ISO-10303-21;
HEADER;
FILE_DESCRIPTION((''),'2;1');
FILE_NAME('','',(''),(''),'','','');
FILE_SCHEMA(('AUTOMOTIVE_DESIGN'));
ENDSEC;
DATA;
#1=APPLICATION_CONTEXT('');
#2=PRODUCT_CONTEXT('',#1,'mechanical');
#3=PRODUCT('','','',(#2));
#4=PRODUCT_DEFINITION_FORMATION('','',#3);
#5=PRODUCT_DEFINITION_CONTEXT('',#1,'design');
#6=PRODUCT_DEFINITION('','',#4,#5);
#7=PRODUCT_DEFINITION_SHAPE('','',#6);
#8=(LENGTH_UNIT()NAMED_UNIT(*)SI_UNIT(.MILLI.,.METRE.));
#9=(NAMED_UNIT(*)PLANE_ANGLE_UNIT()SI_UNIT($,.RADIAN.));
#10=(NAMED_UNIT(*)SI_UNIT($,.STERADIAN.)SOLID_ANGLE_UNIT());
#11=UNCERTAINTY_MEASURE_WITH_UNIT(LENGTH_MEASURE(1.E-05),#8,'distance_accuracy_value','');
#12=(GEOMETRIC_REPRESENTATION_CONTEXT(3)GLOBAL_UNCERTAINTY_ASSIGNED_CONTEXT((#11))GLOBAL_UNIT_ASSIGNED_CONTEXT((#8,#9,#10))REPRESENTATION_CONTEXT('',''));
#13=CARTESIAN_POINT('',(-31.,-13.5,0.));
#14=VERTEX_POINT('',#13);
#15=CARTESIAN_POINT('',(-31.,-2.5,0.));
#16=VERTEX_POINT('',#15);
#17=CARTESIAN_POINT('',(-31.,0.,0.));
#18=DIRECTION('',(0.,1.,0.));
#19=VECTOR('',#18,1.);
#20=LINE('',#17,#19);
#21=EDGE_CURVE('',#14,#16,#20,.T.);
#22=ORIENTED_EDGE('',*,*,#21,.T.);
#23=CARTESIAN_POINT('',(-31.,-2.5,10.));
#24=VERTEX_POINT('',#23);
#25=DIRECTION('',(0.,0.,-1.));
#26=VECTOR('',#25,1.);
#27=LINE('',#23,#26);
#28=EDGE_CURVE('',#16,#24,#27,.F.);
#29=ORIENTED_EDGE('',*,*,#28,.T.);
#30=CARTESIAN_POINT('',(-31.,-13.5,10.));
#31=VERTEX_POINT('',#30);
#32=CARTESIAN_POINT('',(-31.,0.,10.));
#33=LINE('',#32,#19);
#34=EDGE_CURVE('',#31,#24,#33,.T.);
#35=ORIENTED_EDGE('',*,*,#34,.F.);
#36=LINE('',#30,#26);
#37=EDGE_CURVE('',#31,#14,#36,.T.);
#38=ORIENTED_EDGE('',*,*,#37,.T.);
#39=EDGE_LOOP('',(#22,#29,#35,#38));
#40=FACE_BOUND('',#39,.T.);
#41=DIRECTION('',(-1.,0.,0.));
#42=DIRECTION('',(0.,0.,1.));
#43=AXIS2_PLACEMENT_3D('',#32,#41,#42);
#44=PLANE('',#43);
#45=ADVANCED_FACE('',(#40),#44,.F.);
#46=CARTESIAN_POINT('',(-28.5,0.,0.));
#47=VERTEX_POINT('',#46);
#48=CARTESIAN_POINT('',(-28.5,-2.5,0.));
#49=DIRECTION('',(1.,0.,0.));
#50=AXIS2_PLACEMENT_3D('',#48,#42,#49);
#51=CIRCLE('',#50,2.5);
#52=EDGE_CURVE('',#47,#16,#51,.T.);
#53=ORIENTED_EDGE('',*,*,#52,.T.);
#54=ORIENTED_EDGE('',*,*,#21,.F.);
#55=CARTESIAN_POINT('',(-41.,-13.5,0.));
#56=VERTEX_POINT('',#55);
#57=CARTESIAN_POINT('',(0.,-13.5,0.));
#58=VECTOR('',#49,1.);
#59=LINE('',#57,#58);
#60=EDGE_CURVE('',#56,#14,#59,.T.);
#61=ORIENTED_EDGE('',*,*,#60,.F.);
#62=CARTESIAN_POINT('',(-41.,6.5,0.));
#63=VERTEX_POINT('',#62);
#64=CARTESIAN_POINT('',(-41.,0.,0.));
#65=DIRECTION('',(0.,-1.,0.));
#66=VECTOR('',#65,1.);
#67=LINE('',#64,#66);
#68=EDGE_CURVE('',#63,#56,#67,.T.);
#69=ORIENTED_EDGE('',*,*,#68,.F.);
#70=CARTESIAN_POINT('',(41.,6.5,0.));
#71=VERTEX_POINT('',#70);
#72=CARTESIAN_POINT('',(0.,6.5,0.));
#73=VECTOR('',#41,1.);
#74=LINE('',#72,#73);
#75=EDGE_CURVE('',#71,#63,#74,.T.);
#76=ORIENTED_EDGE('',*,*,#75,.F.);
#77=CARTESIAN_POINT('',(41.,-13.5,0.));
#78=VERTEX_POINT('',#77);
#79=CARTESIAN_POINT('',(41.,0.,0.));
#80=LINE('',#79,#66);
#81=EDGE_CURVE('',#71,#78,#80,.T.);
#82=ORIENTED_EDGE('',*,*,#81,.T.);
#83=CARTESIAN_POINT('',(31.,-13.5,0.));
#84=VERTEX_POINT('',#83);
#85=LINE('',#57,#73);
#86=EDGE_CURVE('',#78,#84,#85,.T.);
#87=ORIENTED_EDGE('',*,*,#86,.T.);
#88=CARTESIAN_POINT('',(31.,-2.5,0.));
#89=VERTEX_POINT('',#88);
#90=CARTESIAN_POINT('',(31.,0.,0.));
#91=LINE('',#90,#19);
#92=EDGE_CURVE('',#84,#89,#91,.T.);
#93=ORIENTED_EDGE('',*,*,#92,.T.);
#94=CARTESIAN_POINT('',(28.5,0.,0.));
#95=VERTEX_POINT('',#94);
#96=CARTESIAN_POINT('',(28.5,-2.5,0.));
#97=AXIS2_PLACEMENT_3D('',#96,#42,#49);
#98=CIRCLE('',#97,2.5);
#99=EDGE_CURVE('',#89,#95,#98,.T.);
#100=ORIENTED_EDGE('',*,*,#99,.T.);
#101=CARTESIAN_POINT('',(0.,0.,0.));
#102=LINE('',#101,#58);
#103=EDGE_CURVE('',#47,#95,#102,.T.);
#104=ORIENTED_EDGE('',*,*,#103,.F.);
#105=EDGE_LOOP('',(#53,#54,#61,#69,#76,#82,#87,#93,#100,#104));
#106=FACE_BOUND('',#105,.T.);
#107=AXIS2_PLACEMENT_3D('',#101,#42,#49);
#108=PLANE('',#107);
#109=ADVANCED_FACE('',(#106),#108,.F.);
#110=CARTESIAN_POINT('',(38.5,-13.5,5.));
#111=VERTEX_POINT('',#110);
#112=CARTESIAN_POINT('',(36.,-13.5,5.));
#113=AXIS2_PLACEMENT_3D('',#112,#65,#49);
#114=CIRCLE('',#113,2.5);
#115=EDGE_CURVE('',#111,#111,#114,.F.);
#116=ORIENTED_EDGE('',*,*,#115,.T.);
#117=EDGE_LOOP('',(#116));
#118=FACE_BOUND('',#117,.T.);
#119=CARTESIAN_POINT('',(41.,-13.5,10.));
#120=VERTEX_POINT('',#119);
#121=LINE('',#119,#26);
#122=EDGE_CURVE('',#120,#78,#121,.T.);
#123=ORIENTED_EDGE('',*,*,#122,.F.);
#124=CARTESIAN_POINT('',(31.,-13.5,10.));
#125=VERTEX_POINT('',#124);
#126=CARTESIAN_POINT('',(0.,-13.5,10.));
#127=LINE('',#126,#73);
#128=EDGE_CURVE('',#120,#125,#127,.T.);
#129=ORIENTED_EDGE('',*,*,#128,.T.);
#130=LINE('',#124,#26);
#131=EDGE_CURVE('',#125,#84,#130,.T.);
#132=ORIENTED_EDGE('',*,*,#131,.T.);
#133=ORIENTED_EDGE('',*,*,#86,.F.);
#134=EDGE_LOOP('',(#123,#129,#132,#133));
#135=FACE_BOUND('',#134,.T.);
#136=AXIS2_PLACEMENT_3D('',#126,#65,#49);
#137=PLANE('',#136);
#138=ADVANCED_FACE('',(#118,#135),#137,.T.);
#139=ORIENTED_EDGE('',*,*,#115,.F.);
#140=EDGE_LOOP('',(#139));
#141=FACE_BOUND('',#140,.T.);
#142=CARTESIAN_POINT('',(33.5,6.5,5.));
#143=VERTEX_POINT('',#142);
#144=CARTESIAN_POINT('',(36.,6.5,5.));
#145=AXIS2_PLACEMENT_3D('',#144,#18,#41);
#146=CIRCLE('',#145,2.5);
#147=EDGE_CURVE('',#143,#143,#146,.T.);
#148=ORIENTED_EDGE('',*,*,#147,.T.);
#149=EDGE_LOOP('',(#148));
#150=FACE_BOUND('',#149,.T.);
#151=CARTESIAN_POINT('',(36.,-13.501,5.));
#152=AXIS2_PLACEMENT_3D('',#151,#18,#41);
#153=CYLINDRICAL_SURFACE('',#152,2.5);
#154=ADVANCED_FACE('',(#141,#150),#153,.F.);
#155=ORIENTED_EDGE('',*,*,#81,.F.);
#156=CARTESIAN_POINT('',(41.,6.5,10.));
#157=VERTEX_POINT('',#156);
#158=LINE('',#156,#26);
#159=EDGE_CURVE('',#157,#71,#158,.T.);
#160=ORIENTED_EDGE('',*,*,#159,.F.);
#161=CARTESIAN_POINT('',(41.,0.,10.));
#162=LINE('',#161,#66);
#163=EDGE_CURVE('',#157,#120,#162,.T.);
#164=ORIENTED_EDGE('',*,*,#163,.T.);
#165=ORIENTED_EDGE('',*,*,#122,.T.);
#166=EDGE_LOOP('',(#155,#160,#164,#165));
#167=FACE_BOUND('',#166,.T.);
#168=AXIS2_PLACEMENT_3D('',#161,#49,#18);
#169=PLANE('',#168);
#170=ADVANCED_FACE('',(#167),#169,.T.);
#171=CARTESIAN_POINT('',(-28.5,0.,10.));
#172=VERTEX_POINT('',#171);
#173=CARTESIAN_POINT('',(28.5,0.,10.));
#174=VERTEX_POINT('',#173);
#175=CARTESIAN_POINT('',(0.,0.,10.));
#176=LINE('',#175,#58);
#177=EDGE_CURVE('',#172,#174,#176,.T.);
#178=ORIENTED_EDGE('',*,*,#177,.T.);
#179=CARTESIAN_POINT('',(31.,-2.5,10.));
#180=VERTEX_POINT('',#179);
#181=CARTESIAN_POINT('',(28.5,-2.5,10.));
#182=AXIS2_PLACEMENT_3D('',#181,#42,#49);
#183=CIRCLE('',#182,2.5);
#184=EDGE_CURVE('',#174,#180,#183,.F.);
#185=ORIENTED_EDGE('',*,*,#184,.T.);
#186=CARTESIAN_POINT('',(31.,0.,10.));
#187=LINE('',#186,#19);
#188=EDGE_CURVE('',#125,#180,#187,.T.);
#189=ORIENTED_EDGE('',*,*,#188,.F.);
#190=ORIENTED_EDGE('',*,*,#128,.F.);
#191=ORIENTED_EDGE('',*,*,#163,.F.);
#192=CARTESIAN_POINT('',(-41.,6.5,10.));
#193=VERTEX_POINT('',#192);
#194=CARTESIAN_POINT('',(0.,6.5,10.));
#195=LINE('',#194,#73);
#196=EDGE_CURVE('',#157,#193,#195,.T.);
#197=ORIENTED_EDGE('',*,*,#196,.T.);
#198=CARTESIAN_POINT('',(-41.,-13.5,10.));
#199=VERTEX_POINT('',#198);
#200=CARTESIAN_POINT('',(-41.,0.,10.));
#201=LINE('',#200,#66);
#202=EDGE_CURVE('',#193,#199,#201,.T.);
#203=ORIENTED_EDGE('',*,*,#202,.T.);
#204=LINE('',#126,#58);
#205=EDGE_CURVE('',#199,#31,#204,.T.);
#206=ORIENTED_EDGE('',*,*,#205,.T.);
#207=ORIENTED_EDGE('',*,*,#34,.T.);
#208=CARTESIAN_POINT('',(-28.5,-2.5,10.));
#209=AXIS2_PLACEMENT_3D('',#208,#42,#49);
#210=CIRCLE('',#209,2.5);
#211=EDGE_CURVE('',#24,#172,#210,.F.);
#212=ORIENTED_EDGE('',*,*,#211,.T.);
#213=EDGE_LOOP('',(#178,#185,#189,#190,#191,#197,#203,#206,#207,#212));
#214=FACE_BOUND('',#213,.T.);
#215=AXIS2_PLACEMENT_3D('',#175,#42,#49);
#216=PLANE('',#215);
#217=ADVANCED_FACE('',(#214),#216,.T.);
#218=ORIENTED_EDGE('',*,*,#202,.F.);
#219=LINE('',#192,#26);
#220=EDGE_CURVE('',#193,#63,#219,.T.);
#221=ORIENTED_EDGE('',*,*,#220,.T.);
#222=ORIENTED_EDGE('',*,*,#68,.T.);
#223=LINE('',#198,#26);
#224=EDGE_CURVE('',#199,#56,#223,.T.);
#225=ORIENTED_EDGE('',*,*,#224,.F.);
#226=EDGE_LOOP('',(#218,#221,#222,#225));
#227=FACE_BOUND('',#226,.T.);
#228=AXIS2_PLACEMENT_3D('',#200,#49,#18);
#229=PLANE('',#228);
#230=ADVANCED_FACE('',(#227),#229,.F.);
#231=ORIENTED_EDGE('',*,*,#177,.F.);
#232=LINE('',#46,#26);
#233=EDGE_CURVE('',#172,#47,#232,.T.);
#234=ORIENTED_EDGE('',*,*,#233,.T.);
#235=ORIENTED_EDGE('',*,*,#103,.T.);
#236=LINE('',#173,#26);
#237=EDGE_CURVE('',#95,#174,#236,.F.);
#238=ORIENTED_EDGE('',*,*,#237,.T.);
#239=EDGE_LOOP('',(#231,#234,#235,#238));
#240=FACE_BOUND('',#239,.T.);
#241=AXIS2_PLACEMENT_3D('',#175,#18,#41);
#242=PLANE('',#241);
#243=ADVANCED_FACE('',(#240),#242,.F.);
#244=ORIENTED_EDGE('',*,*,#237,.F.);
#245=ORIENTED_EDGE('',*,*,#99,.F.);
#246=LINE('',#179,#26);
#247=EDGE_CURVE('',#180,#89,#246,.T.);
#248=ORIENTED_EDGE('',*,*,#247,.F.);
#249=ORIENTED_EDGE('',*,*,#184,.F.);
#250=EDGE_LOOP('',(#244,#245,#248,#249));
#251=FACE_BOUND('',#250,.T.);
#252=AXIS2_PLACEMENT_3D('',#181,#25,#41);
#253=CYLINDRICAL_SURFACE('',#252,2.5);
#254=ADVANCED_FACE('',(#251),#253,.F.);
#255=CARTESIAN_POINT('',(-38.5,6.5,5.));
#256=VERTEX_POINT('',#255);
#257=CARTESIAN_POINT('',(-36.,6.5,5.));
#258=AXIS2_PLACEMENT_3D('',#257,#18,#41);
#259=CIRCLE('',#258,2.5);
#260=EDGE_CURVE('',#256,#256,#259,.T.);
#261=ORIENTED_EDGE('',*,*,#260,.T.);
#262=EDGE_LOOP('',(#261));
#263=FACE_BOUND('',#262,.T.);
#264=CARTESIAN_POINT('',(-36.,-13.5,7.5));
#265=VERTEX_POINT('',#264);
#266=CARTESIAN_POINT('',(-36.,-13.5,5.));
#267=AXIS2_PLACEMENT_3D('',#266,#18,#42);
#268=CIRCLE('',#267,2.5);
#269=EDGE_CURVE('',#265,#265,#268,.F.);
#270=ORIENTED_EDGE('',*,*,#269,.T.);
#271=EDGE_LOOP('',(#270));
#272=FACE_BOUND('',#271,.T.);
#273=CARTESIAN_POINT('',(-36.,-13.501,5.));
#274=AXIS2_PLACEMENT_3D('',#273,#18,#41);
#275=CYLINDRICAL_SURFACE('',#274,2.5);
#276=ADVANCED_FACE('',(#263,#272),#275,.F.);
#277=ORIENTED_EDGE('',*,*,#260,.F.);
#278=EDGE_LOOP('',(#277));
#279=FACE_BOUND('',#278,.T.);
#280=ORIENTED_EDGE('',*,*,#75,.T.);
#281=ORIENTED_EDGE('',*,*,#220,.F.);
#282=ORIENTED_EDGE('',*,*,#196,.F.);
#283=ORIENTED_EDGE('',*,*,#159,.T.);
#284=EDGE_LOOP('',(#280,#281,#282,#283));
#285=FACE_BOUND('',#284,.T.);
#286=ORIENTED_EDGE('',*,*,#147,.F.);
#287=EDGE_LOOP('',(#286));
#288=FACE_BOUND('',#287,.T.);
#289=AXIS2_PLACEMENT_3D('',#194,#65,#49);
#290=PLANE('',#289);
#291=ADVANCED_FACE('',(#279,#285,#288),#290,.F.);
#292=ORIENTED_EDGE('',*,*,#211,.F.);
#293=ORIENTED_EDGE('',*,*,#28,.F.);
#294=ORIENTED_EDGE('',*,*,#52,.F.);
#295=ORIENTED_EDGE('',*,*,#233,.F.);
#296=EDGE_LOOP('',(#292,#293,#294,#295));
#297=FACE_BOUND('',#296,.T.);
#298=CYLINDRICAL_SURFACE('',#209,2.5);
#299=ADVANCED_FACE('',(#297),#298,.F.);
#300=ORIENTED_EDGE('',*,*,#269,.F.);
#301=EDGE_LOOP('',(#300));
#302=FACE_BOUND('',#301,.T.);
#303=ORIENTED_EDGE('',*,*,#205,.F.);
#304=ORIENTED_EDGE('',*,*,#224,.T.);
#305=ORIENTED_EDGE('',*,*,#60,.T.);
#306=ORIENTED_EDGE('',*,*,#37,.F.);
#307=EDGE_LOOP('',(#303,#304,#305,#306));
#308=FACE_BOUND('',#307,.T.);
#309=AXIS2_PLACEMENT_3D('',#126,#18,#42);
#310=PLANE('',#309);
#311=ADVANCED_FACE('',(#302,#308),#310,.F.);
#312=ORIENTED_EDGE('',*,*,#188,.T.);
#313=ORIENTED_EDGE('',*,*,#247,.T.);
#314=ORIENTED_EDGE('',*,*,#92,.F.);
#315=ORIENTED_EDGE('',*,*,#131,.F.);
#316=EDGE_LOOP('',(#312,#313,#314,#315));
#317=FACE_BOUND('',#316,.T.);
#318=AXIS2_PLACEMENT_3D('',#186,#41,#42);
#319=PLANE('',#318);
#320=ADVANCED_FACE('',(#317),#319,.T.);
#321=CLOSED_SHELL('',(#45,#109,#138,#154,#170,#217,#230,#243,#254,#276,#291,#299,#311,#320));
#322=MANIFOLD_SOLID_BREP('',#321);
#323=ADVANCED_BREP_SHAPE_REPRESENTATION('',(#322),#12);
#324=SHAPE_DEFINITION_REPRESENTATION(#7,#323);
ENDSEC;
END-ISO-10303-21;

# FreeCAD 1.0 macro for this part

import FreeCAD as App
import Part
import Sketcher
from FreeCAD import Vector
Q = App.Units.Quantity


def edges_at(feature, points):
    """Names of the edges that pass closest to the given points."""
    edges = feature.Shape.Edges
    near = lambda p: min(range(len(edges)), key=lambda i: edges[i].distToShape(Part.Vertex(*p))[0])
    return sorted({f"Edge{near(p) + 1}" for p in points})


def add_polygon(sketch, points):
    """Adds a closed chain of lines whose ends are joined by coincident constraints."""
    first, n = sketch.GeometryCount, len(points)
    for a, b in zip(points, points[1:] + points[:1]):
        sketch.addGeometry(Part.LineSegment(App.Vector(*a, 0), App.Vector(*b, 0)), False)
    for i in range(n):
        sketch.addConstraint(Sketcher.Constraint("Coincident", first + i, 2, first + (i + 1) % n, 1))

doc = App.newDocument("Part")
body = doc.addObject("PartDesign::Body", "Body")

sketch1 = doc.addObject("Sketcher::SketchObject", "Sketch")
body.addObject(sketch1)
sketch1.AttachmentSupport = (doc.XY_Plane, [""])
sketch1.MapMode = "FlatFace"
add_polygon(sketch1, [(31, 0), (31, -14), (41, -14), (41, 6), (-41, 6), (-41, -14), (-31, -14), (-31, 0)])
sketch1.addConstraint([
    Sketcher.Constraint("Vertical", 0),
    Sketcher.Constraint("Horizontal", 1),
    Sketcher.Constraint("Vertical", 2),
    Sketcher.Constraint("Horizontal", 3),
    Sketcher.Constraint("Vertical", 4),
    Sketcher.Constraint("Horizontal", 5),
    Sketcher.Constraint("Vertical", 6),
    Sketcher.Constraint("Horizontal", 7),
    Sketcher.Constraint("Symmetric", 6, 2, 7, 2, -1, 1),
    Sketcher.Constraint("Symmetric", 1, 2, 4, 2, -2),
    Sketcher.Constraint("DistanceX", 1, 1, 1, 2, Q("10 mm")),
    Sketcher.Constraint("DistanceX", 3, 2, 3, 1, Q("82 mm")),
    Sketcher.Constraint("DistanceY", 2, 1, 2, 2, Q("20 mm")),
    Sketcher.Constraint("DistanceY", 0, 2, 0, 1, Q("13.5 mm")),
])
pad1 = doc.addObject("PartDesign::Pad", "Pad")
body.addObject(pad1)
pad1.Profile = sketch1
pad1.Length = 10
doc.recompute()

fillet = doc.addObject("PartDesign::Fillet", "Fillet")
body.addObject(fillet)
fillet.Base = (pad1, edges_at(pad1, [(31, 0, 5), (-31, 0, 5)]))
fillet.Radius = 2.5

sketch2 = doc.addObject("Sketcher::SketchObject", "Sketch001")
body.addObject(sketch2)
sketch2.AttachmentSupport = (doc.XZ_Plane, [""])
sketch2.MapMode = "FlatFace"
sketch2.AttachmentOffset = App.Placement(Vector(0, 0, -6.5), App.Rotation())
sketch2.addGeometry(Part.Circle(Vector(-36, 5, 0), Vector(0, 0, 1), 2.5), False)
sketch2.addConstraint([
    Sketcher.Constraint("Diameter", 0, Q("5 mm")),
    Sketcher.Constraint("DistanceX", 0, 3, -1, 1, Q("36 mm")),
    Sketcher.Constraint("DistanceY", -1, 1, 0, 3, Q("5 mm")),
])
pocket1 = doc.addObject("PartDesign::Pocket", "Pocket")
body.addObject(pocket1)
pocket1.Profile = sketch2
pocket1.Type = "UpToFirst"
pocket1.Reversed = True

sketch3 = doc.addObject("Sketcher::SketchObject", "Sketch002")
body.addObject(sketch3)
sketch3.AttachmentSupport = (doc.XZ_Plane, [""])
sketch3.MapMode = "FlatFace"
sketch3.AttachmentOffset = App.Placement(Vector(0, 0, -6.5), App.Rotation())
sketch3.addGeometry(Part.Circle(Vector(36, 5, 0), Vector(0, 0, 1), 2.5), False)
sketch3.addConstraint([
    Sketcher.Constraint("Diameter", 0, Q("5 mm")),
    Sketcher.Constraint("DistanceX", -1, 1, 0, 3, Q("36 mm")),
    Sketcher.Constraint("DistanceY", -1, 1, 0, 3, Q("5 mm")),
])
pocket2 = doc.addObject("PartDesign::Pocket", "Pocket001")
body.addObject(pocket2)
pocket2.Profile = sketch3
pocket2.Type = "UpToFirst"
pocket2.Reversed = True

doc.recompute()
